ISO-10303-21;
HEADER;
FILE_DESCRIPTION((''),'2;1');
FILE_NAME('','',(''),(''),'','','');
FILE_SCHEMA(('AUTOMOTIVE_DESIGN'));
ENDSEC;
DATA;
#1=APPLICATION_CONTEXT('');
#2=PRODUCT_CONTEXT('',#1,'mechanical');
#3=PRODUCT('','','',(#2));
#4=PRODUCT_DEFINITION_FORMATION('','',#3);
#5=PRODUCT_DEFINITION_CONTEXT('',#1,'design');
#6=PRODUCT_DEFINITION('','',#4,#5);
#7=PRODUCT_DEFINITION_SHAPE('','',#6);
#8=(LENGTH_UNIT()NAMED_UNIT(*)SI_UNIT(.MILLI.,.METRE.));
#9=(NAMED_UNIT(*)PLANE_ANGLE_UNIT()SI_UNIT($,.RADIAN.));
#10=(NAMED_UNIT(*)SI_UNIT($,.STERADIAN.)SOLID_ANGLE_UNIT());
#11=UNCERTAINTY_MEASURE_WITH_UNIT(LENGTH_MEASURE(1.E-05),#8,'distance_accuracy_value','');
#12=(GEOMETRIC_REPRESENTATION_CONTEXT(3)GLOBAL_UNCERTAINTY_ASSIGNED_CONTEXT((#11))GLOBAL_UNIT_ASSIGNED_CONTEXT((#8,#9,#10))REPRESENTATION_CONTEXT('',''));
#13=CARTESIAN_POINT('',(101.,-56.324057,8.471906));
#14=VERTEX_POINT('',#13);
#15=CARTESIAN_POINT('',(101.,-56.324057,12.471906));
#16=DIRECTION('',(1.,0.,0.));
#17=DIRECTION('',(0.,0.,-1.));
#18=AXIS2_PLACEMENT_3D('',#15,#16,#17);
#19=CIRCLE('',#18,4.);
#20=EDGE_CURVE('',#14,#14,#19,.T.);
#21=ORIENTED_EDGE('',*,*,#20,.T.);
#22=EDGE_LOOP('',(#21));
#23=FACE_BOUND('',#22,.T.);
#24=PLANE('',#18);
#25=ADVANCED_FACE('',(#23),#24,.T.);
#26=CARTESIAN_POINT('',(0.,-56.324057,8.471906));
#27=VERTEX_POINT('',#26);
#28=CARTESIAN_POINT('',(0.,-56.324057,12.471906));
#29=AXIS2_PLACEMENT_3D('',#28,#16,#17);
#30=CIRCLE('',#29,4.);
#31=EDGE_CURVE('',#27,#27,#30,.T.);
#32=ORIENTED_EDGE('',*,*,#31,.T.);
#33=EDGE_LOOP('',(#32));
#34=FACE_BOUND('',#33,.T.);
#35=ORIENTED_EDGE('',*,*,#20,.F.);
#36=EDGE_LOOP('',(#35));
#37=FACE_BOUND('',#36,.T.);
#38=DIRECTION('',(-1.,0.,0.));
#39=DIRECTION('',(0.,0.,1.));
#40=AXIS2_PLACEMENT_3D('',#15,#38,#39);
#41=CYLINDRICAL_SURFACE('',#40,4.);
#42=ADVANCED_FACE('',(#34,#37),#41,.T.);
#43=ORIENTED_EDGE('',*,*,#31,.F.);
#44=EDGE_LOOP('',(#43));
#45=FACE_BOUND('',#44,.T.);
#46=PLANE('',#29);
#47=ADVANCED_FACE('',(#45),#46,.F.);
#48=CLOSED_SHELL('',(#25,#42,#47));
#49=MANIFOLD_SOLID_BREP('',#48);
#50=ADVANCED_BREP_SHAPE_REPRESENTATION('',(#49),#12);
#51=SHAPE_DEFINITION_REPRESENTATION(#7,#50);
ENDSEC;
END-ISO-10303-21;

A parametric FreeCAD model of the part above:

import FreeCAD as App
import Part
import Sketcher
from FreeCAD import Vector

doc = App.newDocument("Part")
body = doc.addObject("PartDesign::Body", "Body")

# Sketch on YZ plane
sketch1 = body.newObject("Sketcher::SketchObject", "Sketch")
sketch1.AttachmentSupport = (doc.getObject("YZ_Plane"), [""])
sketch1.MapMode = "FlatFace"
sketch1.addGeometry(Part.Circle(Vector(-56.3, 12.5, 0), Vector(0, 0, 1), 4), False)
sketch1.addConstraint(Sketcher.Constraint("Diameter", 0, 8.0))
sketch1.addConstraint(Sketcher.Constraint("DistanceX", 0, 3, -1, 1, 56.324057))
sketch1.addConstraint(Sketcher.Constraint("DistanceY", -1, 1, 0, 3, 12.471906))
pad1 = body.newObject("PartDesign::Pad", "Pad")
pad1.Profile = sketch1
pad1.Length = 101

doc.recompute()
